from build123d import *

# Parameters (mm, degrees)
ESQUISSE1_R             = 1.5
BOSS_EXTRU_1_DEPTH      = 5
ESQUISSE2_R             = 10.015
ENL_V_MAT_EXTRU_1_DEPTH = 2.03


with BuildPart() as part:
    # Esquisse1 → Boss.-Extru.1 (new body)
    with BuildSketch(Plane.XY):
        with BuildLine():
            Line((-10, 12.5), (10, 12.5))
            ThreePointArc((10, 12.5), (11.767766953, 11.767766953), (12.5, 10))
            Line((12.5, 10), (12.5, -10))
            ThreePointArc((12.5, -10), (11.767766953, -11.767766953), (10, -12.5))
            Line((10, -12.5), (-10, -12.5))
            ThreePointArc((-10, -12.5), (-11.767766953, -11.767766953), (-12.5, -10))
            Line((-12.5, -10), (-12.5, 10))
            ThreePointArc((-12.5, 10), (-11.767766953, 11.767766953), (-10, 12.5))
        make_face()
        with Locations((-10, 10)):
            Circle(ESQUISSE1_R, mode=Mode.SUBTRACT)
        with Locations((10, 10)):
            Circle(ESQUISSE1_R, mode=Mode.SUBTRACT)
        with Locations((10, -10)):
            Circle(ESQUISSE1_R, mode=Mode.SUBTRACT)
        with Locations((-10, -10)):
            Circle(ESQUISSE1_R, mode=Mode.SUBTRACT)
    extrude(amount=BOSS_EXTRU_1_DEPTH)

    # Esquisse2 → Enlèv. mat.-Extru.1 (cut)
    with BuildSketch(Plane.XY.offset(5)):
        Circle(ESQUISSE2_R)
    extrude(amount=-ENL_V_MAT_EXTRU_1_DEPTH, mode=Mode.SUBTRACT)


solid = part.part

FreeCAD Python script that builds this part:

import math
import FreeCAD as App
import Part
import Sketcher
Q = App.Units.Quantity

doc = App.newDocument("Part")
body = doc.addObject("PartDesign::Body", "Body")

# Sketch on XY plane
sketch1 = doc.addObject("Sketcher::SketchObject", "Sketch")
body.addObject(sketch1)
sketch1.AttachmentSupport = (doc.XY_Plane, [""])
sketch1.MapMode = "FlatFace"
sketch1.addGeometry([
    Part.LineSegment(App.Vector(10, 12.5, 0), App.Vector(-10, 12.5, 0)),  # 0
    Part.ArcOfCircle(Part.Circle(App.Vector(-10, 10, 0), App.Vector(0, 0, 1), 2.5), math.radians(90), math.radians(180)),  # 1
    Part.LineSegment(App.Vector(-12.5, 10, 0), App.Vector(-12.5, -10, 0)),  # 2
    Part.ArcOfCircle(Part.Circle(App.Vector(-10, -10, 0), App.Vector(0, 0, 1), 2.5), math.radians(180), math.radians(270)),  # 3
    Part.LineSegment(App.Vector(-10, -12.5, 0), App.Vector(10, -12.5, 0)),  # 4
    Part.ArcOfCircle(Part.Circle(App.Vector(10, -10, 0), App.Vector(0, 0, 1), 2.5), math.radians(-90), math.radians(0)),  # 5
    Part.LineSegment(App.Vector(12.5, -10, 0), App.Vector(12.5, 10, 0)),  # 6
    Part.ArcOfCircle(Part.Circle(App.Vector(10, 10, 0), App.Vector(0, 0, 1), 2.5), math.radians(0), math.radians(90)),  # 7
    Part.Circle(App.Vector(10, -10, 0), App.Vector(0, 0, 1), 1.5),  # 8
    Part.Circle(App.Vector(-10, -10, 0), App.Vector(0, 0, 1), 1.5),  # 9
    Part.Circle(App.Vector(10, 10, 0), App.Vector(0, 0, 1), 1.5),  # 10
    Part.Circle(App.Vector(-10, 10, 0), App.Vector(0, 0, 1), 1.5),  # 11
], False)
sketch1.addConstraint([
    Sketcher.Constraint("Tangent", 0, 2, 1, 1),
    Sketcher.Constraint("Tangent", 1, 2, 2, 1),
    Sketcher.Constraint("Tangent", 2, 2, 3, 1),
    Sketcher.Constraint("Tangent", 3, 2, 4, 1),
    Sketcher.Constraint("Tangent", 4, 2, 5, 1),
    Sketcher.Constraint("Tangent", 5, 2, 6, 1),
    Sketcher.Constraint("Tangent", 6, 2, 7, 1),
    Sketcher.Constraint("Tangent", 7, 2, 0, 1),
    Sketcher.Constraint("Horizontal", 0),
    Sketcher.Constraint("Vertical", 2),
    Sketcher.Constraint("Horizontal", 4),
    Sketcher.Constraint("Vertical", 6),
    Sketcher.Constraint("Coincident", 8, 3, 5, 3),
    Sketcher.Constraint("Coincident", 9, 3, 3, 3),
    Sketcher.Constraint("Coincident", 10, 3, 7, 3),
    Sketcher.Constraint("Coincident", 11, 3, 1, 3),
    Sketcher.Constraint("Equal", 1, 3),
    Sketcher.Constraint("Equal", 3, 5),
    Sketcher.Constraint("Equal", 5, 7),
    Sketcher.Constraint("Equal", 8, 9),
    Sketcher.Constraint("Equal", 9, 10),
    Sketcher.Constraint("Equal", 10, 11),
    Sketcher.Constraint("Symmetric", 1, 3, 5, 3, -1, 1),
    Sketcher.Constraint("Equal", 4, 2),
    Sketcher.Constraint("Diameter", 8, Q("3 mm")),
    Sketcher.Constraint("Radius", 1, Q("2.5 mm")),
    Sketcher.Constraint("DistanceX", 0, 2, 0, 1, Q("20 mm")),
])
pad1 = doc.addObject("PartDesign::Pad", "Pad")
body.addObject(pad1)
pad1.Profile = sketch1
pad1.Length = 5

# Sketch on XY plane
sketch2 = doc.addObject("Sketcher::SketchObject", "Sketch001")
body.addObject(sketch2)
sketch2.AttachmentSupport = (doc.XY_Plane, [""])
sketch2.MapMode = "FlatFace"
sketch2.AttachmentOffset = App.Placement(App.Vector(0, 0, 5), App.Rotation())
sketch2.addGeometry(Part.Circle(App.Vector(0, 0, 0), App.Vector(0, 0, 1), 10.015), False)
sketch2.addConstraint([
    Sketcher.Constraint("Coincident", 0, 3, -1, 1),
    Sketcher.Constraint("Diameter", 0, Q("20.03 mm")),
])
pocket1 = doc.addObject("PartDesign::Pocket", "Pocket")
body.addObject(pocket1)
pocket1.Profile = sketch2
pocket1.Length = 2.03

doc.recompute()
